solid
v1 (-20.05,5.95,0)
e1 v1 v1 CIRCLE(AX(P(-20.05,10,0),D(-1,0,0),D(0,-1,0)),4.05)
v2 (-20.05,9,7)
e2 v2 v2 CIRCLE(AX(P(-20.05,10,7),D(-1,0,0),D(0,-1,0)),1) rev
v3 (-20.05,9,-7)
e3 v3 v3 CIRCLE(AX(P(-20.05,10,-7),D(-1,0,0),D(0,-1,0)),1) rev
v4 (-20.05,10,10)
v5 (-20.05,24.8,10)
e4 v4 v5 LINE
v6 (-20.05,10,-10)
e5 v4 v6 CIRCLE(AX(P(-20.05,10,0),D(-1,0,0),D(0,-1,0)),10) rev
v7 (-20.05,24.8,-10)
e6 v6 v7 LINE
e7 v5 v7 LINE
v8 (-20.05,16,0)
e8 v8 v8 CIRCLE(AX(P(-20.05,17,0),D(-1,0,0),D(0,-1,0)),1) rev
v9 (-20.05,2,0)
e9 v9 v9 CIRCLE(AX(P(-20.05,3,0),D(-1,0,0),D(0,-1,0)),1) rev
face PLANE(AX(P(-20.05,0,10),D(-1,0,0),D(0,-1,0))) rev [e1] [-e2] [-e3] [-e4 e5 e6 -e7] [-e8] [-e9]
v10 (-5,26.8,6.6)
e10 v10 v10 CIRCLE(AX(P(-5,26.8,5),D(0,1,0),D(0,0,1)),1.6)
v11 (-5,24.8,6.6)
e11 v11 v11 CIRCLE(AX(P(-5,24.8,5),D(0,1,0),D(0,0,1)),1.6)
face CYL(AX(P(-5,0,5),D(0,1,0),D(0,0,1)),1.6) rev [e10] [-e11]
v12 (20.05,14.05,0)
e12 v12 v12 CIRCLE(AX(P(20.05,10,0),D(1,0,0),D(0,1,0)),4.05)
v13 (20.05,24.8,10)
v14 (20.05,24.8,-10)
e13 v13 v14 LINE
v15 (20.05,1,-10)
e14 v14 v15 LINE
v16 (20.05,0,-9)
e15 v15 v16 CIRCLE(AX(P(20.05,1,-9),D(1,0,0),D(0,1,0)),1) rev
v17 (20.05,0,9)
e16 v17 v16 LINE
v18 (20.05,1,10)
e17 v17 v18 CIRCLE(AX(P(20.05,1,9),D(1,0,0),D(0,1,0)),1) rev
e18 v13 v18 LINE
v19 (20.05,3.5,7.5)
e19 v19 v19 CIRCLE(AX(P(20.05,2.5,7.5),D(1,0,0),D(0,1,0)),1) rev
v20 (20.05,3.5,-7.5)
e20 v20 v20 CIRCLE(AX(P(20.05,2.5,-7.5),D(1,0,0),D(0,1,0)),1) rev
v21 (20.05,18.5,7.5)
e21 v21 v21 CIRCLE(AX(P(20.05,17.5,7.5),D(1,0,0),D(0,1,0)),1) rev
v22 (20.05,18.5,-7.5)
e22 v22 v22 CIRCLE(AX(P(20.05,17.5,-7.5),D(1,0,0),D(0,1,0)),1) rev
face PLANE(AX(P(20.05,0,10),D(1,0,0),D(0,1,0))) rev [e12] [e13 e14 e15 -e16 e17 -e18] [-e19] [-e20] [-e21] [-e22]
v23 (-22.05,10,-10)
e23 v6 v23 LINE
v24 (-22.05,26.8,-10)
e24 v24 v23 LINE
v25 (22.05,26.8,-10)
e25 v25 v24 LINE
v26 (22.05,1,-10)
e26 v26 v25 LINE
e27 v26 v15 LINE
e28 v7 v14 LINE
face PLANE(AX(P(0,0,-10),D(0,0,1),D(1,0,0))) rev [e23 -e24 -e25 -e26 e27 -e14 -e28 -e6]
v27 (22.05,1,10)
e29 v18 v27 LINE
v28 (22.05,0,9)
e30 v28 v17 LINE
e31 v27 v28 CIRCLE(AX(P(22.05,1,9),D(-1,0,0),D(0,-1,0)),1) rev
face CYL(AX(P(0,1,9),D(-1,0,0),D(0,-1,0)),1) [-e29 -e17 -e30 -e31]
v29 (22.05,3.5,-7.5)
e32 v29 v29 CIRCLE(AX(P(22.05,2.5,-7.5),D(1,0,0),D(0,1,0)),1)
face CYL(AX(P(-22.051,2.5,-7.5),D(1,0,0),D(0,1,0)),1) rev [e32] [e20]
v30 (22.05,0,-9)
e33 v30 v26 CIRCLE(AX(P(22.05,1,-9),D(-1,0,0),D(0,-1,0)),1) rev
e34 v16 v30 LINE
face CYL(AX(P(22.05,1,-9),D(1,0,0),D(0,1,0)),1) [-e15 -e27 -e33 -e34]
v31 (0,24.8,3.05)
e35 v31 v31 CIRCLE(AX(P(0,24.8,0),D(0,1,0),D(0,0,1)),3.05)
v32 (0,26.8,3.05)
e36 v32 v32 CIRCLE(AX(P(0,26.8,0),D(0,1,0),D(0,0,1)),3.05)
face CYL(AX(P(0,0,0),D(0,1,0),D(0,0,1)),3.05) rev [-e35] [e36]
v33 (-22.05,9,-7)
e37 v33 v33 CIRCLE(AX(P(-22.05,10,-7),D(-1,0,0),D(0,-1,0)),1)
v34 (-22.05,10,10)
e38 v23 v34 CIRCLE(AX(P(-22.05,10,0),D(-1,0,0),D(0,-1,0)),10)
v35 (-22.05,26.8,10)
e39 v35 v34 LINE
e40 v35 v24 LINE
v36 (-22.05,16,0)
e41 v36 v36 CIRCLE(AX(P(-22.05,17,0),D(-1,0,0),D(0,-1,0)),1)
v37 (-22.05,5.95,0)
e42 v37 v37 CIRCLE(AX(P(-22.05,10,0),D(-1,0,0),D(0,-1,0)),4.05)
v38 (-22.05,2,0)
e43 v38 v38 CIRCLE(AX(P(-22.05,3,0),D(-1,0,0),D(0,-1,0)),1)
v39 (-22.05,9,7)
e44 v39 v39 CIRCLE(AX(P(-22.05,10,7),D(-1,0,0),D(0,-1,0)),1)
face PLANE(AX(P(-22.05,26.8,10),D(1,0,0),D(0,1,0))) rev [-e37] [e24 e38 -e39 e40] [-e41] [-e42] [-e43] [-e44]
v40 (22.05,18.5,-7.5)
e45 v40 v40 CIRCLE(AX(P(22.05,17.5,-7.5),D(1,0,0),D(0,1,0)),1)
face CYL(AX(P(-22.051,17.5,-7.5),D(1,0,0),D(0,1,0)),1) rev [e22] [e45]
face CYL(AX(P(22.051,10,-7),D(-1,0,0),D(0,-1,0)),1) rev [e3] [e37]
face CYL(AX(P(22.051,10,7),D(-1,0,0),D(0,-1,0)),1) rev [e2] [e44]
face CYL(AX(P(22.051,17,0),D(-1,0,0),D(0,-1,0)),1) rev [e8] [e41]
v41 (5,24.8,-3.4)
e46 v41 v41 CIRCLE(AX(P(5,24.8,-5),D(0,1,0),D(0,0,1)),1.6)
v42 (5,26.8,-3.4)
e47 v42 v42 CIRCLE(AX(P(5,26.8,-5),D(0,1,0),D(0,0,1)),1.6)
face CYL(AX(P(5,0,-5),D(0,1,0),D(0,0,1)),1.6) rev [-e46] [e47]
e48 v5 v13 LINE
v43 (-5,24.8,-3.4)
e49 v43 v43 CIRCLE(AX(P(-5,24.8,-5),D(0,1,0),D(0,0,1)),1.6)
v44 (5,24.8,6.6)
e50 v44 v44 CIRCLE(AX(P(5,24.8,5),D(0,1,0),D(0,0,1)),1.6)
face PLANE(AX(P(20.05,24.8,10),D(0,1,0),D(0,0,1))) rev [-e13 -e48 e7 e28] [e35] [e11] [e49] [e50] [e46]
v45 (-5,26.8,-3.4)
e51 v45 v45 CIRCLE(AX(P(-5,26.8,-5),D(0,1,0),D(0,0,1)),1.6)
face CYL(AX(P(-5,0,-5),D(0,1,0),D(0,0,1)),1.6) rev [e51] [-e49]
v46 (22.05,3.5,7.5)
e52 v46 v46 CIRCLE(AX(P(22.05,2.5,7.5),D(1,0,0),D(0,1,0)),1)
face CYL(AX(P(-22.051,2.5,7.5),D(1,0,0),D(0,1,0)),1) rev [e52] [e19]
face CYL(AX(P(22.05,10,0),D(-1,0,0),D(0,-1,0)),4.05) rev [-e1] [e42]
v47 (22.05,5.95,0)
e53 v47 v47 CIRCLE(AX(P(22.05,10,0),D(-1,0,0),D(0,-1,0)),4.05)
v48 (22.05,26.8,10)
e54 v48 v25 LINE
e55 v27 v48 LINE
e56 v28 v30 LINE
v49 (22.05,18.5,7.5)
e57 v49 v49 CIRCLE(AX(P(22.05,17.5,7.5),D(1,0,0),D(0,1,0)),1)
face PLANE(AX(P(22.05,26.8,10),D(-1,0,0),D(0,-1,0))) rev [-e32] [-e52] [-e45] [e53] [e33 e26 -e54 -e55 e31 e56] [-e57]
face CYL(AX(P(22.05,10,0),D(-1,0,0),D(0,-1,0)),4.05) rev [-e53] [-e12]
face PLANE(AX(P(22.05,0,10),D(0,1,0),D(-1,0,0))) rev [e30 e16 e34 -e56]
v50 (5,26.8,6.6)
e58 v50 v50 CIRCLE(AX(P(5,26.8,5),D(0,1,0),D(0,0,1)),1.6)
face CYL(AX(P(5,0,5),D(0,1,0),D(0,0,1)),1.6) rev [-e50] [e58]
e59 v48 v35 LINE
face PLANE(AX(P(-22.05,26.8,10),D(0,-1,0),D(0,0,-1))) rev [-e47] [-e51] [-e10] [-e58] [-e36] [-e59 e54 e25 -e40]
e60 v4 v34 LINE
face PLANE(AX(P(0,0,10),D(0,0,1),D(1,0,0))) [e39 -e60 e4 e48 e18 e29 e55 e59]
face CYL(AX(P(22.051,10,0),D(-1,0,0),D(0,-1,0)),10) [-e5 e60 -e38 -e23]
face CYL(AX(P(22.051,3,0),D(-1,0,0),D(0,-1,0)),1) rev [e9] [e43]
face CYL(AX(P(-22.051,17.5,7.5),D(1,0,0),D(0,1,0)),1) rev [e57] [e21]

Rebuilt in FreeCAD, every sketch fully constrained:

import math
import FreeCAD as App
import Part
import Sketcher
from FreeCAD import Vector
Q = App.Units.Quantity


def edges_at(feature, points):
    """Names of the edges that pass closest to the given points."""
    edges = feature.Shape.Edges
    near = lambda p: min(range(len(edges)), key=lambda i: edges[i].distToShape(Part.Vertex(*p))[0])
    return sorted({f"Edge{near(p) + 1}" for p in points})

doc = App.newDocument("Part")
body = doc.addObject("PartDesign::Body", "Body")

# Sketch on XY plane
sketch1 = doc.addObject("Sketcher::SketchObject", "Sketch")
body.addObject(sketch1)
sketch1.AttachmentSupport = (doc.XY_Plane, [""])
sketch1.MapMode = "FlatFace"
sketch1.addGeometry([
    Part.LineSegment(Vector(22.05, 26.8, 0), Vector(-22.05, 26.8, 0)),  # 0
    Part.LineSegment(Vector(-22.05, 26.8, 0), Vector(-22.05, 0, 0)),  # 1
    Part.LineSegment(Vector(-22.05, 0, 0), Vector(-20.05, 0, 0)),  # 2
    Part.LineSegment(Vector(-20.05, 0, 0), Vector(-20.05, 24.8, 0)),  # 3
    Part.LineSegment(Vector(-20.05, 24.8, 0), Vector(20.05, 24.8, 0)),  # 4
    Part.LineSegment(Vector(20.05, 24.8, 0), Vector(20.05, 0, 0)),  # 5
    Part.LineSegment(Vector(20.05, 0, 0), Vector(22.05, 0, 0)),  # 6
    Part.LineSegment(Vector(22.05, 0, 0), Vector(22.05, 26.8, 0)),  # 7
], False)
sketch1.addConstraint([
    Sketcher.Constraint("Coincident", 0, 2, 1, 1),
    Sketcher.Constraint("Coincident", 1, 2, 2, 1),
    Sketcher.Constraint("Coincident", 2, 2, 3, 1),
    Sketcher.Constraint("Coincident", 3, 2, 4, 1),
    Sketcher.Constraint("Coincident", 4, 2, 5, 1),
    Sketcher.Constraint("Coincident", 5, 2, 6, 1),
    Sketcher.Constraint("Coincident", 6, 2, 7, 1),
    Sketcher.Constraint("Coincident", 7, 2, 0, 1),
    Sketcher.Constraint("Horizontal", 0),
    Sketcher.Constraint("Vertical", 1),
    Sketcher.Constraint("Horizontal", 2),
    Sketcher.Constraint("Vertical", 3),
    Sketcher.Constraint("Horizontal", 4),
    Sketcher.Constraint("Vertical", 5),
    Sketcher.Constraint("Horizontal", 6),
    Sketcher.Constraint("Vertical", 7),
    Sketcher.Constraint("Symmetric", 2, 2, 5, 2, -1, 1),
    Sketcher.Constraint("Symmetric", 1, 2, 6, 2, -2),
    Sketcher.Constraint("DistanceX", 2, 1, 2, 2, Q("2 mm")),
    Sketcher.Constraint("DistanceX", 0, 2, 0, 1, Q("44.1 mm")),
    Sketcher.Constraint("DistanceY", 1, 2, 1, 1, Q("26.8 mm")),
    Sketcher.Constraint("DistanceY", 3, 1, 3, 2, Q("24.8 mm")),
])
pad1 = doc.addObject("PartDesign::Pad", "Pad")
body.addObject(pad1)
pad1.Profile = sketch1
pad1.Length = 20
pad1.Midplane = True

# Sketch on XZ plane
sketch2 = doc.addObject("Sketcher::SketchObject", "Sketch001")
body.addObject(sketch2)
sketch2.AttachmentSupport = (doc.XZ_Plane, [""])
sketch2.MapMode = "FlatFace"
sketch2.AttachmentOffset = App.Placement(Vector(0, 0, -26.8), App.Rotation())
sketch2.addGeometry([
    Part.Circle(Vector(0, 0, 0), Vector(0, 0, 1), 3.05),  # 0
    Part.Circle(Vector(-5, -5, 0), Vector(0, 0, 1), 1.6),  # 1
    Part.Circle(Vector(5, -5, 0), Vector(0, 0, 1), 1.6),  # 2
    Part.Circle(Vector(5, 5, 0), Vector(0, 0, 1), 1.6),  # 3
    Part.Circle(Vector(-5, 5, 0), Vector(0, 0, 1), 1.6),  # 4
], False)
sketch2.addConstraint([
    Sketcher.Constraint("Coincident", 0, 3, -1, 1),
    Sketcher.Constraint("Equal", 1, 2),
    Sketcher.Constraint("Equal", 2, 3),
    Sketcher.Constraint("Equal", 3, 4),
    Sketcher.Constraint("Symmetric", 1, 3, 3, 3, -1, 1),
    Sketcher.Constraint("Symmetric", 2, 3, 4, 3, -1, 1),
    Sketcher.Constraint("Symmetric", 1, 3, 2, 3, -2),
    Sketcher.Constraint("Diameter", 0, Q("6.1 mm")),
    Sketcher.Constraint("Diameter", 1, Q("3.2 mm")),
    Sketcher.Constraint("DistanceX", 1, 3, -1, 1, Q("5 mm")),
    Sketcher.Constraint("DistanceY", 1, 3, -1, 1, Q("5 mm")),
])
pocket1 = doc.addObject("PartDesign::Pocket", "Pocket")
body.addObject(pocket1)
pocket1.Profile = sketch2
pocket1.Type = "ThroughAll"
pocket1.Reversed = True

# Sketch on YZ plane
sketch3 = doc.addObject("Sketcher::SketchObject", "Sketch002")
body.addObject(sketch3)
sketch3.AttachmentSupport = (doc.YZ_Plane, [""])
sketch3.MapMode = "FlatFace"
sketch3.AttachmentOffset = App.Placement(Vector(0, 0, -22.05), App.Rotation())
sketch3.addGeometry([
    Part.ArcOfCircle(Part.Circle(Vector(10, 0, 0), Vector(0, 0, 1), 10), math.radians(180), math.radians(270)),
    Part.LineSegment(Vector(10, -10, 0), Vector(0, -10, 0)),
    Part.LineSegment(Vector(0, -10, 0), Vector(0, 0, 0)),
], False)
sketch3.addConstraint([
    Sketcher.Constraint("Tangent", 0, 2, 1, 1),
    Sketcher.Constraint("Coincident", 1, 2, 2, 1),
    Sketcher.Constraint("Tangent", 2, 2, 0, 1),
    Sketcher.Constraint("Horizontal", 1),
    Sketcher.Constraint("Vertical", 2),
    Sketcher.Constraint("Coincident", 2, 2, -1, 1),
    Sketcher.Constraint("Radius", 0, Q("10 mm")),
])
pocket2 = doc.addObject("PartDesign::Pocket", "Pocket001")
body.addObject(pocket2)
pocket2.Profile = sketch3
pocket2.Type = "UpToFirst"
pocket2.Reversed = True

# Sketch on YZ plane
sketch4 = doc.addObject("Sketcher::SketchObject", "Sketch003")
body.addObject(sketch4)
sketch4.AttachmentSupport = (doc.YZ_Plane, [""])
sketch4.MapMode = "FlatFace"
sketch4.AttachmentOffset = App.Placement(Vector(0, 0, -22.05), App.Rotation())
sketch4.addGeometry([
    Part.ArcOfCircle(Part.Circle(Vector(10, 0, 0), Vector(0, 0, 1), 10), math.radians(90), math.radians(180)),
    Part.LineSegment(Vector(0, 0, 0), Vector(0, 10, 0)),
    Part.LineSegment(Vector(0, 10, 0), Vector(10, 10, 0)),
], False)
sketch4.addConstraint([
    Sketcher.Constraint("Tangent", 0, 2, 1, 1),
    Sketcher.Constraint("Coincident", 1, 2, 2, 1),
    Sketcher.Constraint("Tangent", 2, 2, 0, 1),
    Sketcher.Constraint("Vertical", 1),
    Sketcher.Constraint("Horizontal", 2),
    Sketcher.Constraint("Coincident", 0, 2, -1, 1),
    Sketcher.Constraint("Radius", 0, Q("10 mm")),
])
pocket3 = doc.addObject("PartDesign::Pocket", "Pocket002")
body.addObject(pocket3)
pocket3.Profile = sketch4
pocket3.Type = "UpToFirst"
pocket3.Reversed = True

# Sketch on YZ plane
sketch5 = doc.addObject("Sketcher::SketchObject", "Sketch004")
body.addObject(sketch5)
sketch5.AttachmentSupport = (doc.YZ_Plane, [""])
sketch5.MapMode = "FlatFace"
sketch5.AttachmentOffset = App.Placement(Vector(0, 0, -22.05), App.Rotation())
sketch5.addGeometry([
    Part.ArcOfCircle(Part.Circle(Vector(10, 0, 0), Vector(0, 0, 1), 10), math.radians(180), math.radians(270)),  # 0
    Part.LineSegment(Vector(10, -10, 0), Vector(0, -10, 0)),  # 1
    Part.LineSegment(Vector(0, -10, 0), Vector(0, 0, 0)),  # 2
    Part.ArcOfCircle(Part.Circle(Vector(10, 0, 0), Vector(0, 0, 1), 10), math.radians(90), math.radians(180)),  # 3
    Part.LineSegment(Vector(0, 0, 0), Vector(0, 10, 0)),  # 4
    Part.LineSegment(Vector(0, 10, 0), Vector(10, 10, 0)),  # 5
], False)
sketch5.addConstraint([
    Sketcher.Constraint("Tangent", 0, 2, 1, 1),
    Sketcher.Constraint("Coincident", 1, 2, 2, 1),
    Sketcher.Constraint("Tangent", 2, 2, 0, 1),
    Sketcher.Constraint("Tangent", 3, 2, 4, 1),
    Sketcher.Constraint("Coincident", 4, 2, 5, 1),
    Sketcher.Constraint("Tangent", 5, 2, 3, 1),
    Sketcher.Constraint("Horizontal", 1),
    Sketcher.Constraint("Vertical", 2),
    Sketcher.Constraint("Vertical", 4),
    Sketcher.Constraint("Horizontal", 5),
    Sketcher.Constraint("Coincident", 2, 2, -1, 1),
    Sketcher.Constraint("Coincident", 3, 2, -1, 1),
    Sketcher.Constraint("Equal", 0, 3),
    Sketcher.Constraint("Radius", 0, Q("10 mm")),
])
pocket4 = doc.addObject("PartDesign::Pocket", "Pocket003")
body.addObject(pocket4)
pocket4.Profile = sketch5
pocket4.Length = 53.564722

# Sketch on YZ plane
sketch6 = doc.addObject("Sketcher::SketchObject", "Sketch005")
body.addObject(sketch6)
sketch6.AttachmentSupport = (doc.YZ_Plane, [""])
sketch6.MapMode = "FlatFace"
sketch6.AttachmentOffset = App.Placement(Vector(0, 0, -22.05), App.Rotation())
sketch6.addGeometry(Part.Circle(Vector(10, 0, 0), Vector(0, 0, 1), 4.05), False)
sketch6.addConstraint([
    Sketcher.Constraint("PointOnObject", 0, 3, -1),
    Sketcher.Constraint("Diameter", 0, Q("8.1 mm")),
    Sketcher.Constraint("DistanceX", -1, 1, 0, 3, Q("10 mm")),
])
pocket5 = doc.addObject("PartDesign::Pocket", "Pocket004")
body.addObject(pocket5)
pocket5.Profile = sketch6
pocket5.Type = "ThroughAll"
pocket5.Reversed = True

# Sketch on YZ plane
sketch7 = doc.addObject("Sketcher::SketchObject", "Sketch006")
body.addObject(sketch7)
sketch7.AttachmentSupport = (doc.YZ_Plane, [""])
sketch7.MapMode = "FlatFace"
sketch7.AttachmentOffset = App.Placement(Vector(0, 0, -22.05), App.Rotation())
sketch7.addGeometry(Part.Circle(Vector(10, -7, 0), Vector(0, 0, 1), 1), False)
sketch7.addConstraint([
    Sketcher.Constraint("Diameter", 0, Q("2 mm")),
    Sketcher.Constraint("DistanceX", -1, 1, 0, 3, Q("10 mm")),
    Sketcher.Constraint("DistanceY", 0, 3, -1, 1, Q("7 mm")),
])
pocket6 = doc.addObject("PartDesign::Pocket", "Pocket005")
body.addObject(pocket6)
pocket6.Profile = sketch7
pocket6.Type = "UpToFirst"
pocket6.Reversed = True

# Sketch on YZ plane
sketch8 = doc.addObject("Sketcher::SketchObject", "Sketch007")
body.addObject(sketch8)
sketch8.AttachmentSupport = (doc.YZ_Plane, [""])
sketch8.MapMode = "FlatFace"
sketch8.AttachmentOffset = App.Placement(Vector(0, 0, -22.05), App.Rotation())
sketch8.addGeometry(Part.Circle(Vector(17, 0, 0), Vector(0, 0, 1), 1), False)
sketch8.addConstraint([
    Sketcher.Constraint("PointOnObject", 0, 3, -1),
    Sketcher.Constraint("Diameter", 0, Q("2 mm")),
    Sketcher.Constraint("DistanceX", -1, 1, 0, 3, Q("17 mm")),
])
pocket7 = doc.addObject("PartDesign::Pocket", "Pocket006")
body.addObject(pocket7)
pocket7.Profile = sketch8
pocket7.Type = "UpToFirst"
pocket7.Reversed = True

# Sketch on YZ plane
sketch9 = doc.addObject("Sketcher::SketchObject", "Sketch008")
body.addObject(sketch9)
sketch9.AttachmentSupport = (doc.YZ_Plane, [""])
sketch9.MapMode = "FlatFace"
sketch9.AttachmentOffset = App.Placement(Vector(0, 0, -22.05), App.Rotation())
sketch9.addGeometry(Part.Circle(Vector(10, 7, 0), Vector(0, 0, 1), 1), False)
sketch9.addConstraint([
    Sketcher.Constraint("Diameter", 0, Q("2 mm")),
    Sketcher.Constraint("DistanceX", -1, 1, 0, 3, Q("10 mm")),
    Sketcher.Constraint("DistanceY", -1, 1, 0, 3, Q("7 mm")),
])
pocket8 = doc.addObject("PartDesign::Pocket", "Pocket007")
body.addObject(pocket8)
pocket8.Profile = sketch9
pocket8.Type = "UpToFirst"
pocket8.Reversed = True

# Sketch on YZ plane
sketch10 = doc.addObject("Sketcher::SketchObject", "Sketch009")
body.addObject(sketch10)
sketch10.AttachmentSupport = (doc.YZ_Plane, [""])
sketch10.MapMode = "FlatFace"
sketch10.AttachmentOffset = App.Placement(Vector(0, 0, -22.05), App.Rotation())
sketch10.addGeometry(Part.Circle(Vector(3, 0, 0), Vector(0, 0, 1), 1), False)
sketch10.addConstraint([
    Sketcher.Constraint("PointOnObject", 0, 3, -1),
    Sketcher.Constraint("Diameter", 0, Q("2 mm")),
    Sketcher.Constraint("DistanceX", -1, 1, 0, 3, Q("3 mm")),
])
pocket9 = doc.addObject("PartDesign::Pocket", "Pocket008")
body.addObject(pocket9)
pocket9.Profile = sketch10
pocket9.Type = "UpToFirst"
pocket9.Reversed = True

# Sketch on YZ plane
sketch11 = doc.addObject("Sketcher::SketchObject", "Sketch010")
body.addObject(sketch11)
sketch11.AttachmentSupport = (doc.YZ_Plane, [""])
sketch11.MapMode = "FlatFace"
sketch11.AttachmentOffset = App.Placement(Vector(0, 0, 22.05), App.Rotation())
sketch11.addGeometry(Part.Circle(Vector(2.5, 7.5, 0), Vector(0, 0, 1), 1), False)
sketch11.addConstraint([
    Sketcher.Constraint("Diameter", 0, Q("2 mm")),
    Sketcher.Constraint("DistanceX", -1, 1, 0, 3, Q("2.5 mm")),
    Sketcher.Constraint("DistanceY", -1, 1, 0, 3, Q("7.5 mm")),
])
pocket10 = doc.addObject("PartDesign::Pocket", "Pocket009")
body.addObject(pocket10)
pocket10.Profile = sketch11
pocket10.Type = "UpToFirst"

# Sketch on YZ plane
sketch12 = doc.addObject("Sketcher::SketchObject", "Sketch011")
body.addObject(sketch12)
sketch12.AttachmentSupport = (doc.YZ_Plane, [""])
sketch12.MapMode = "FlatFace"
sketch12.AttachmentOffset = App.Placement(Vector(0, 0, 22.05), App.Rotation())
sketch12.addGeometry(Part.Circle(Vector(2.5, -7.5, 0), Vector(0, 0, 1), 1), False)
sketch12.addConstraint([
    Sketcher.Constraint("Diameter", 0, Q("2 mm")),
    Sketcher.Constraint("DistanceX", -1, 1, 0, 3, Q("2.5 mm")),
    Sketcher.Constraint("DistanceY", 0, 3, -1, 1, Q("7.5 mm")),
])
pocket11 = doc.addObject("PartDesign::Pocket", "Pocket010")
body.addObject(pocket11)
pocket11.Profile = sketch12
pocket11.Type = "UpToFirst"

# Sketch on YZ plane
sketch13 = doc.addObject("Sketcher::SketchObject", "Sketch012")
body.addObject(sketch13)
sketch13.AttachmentSupport = (doc.YZ_Plane, [""])
sketch13.MapMode = "FlatFace"
sketch13.AttachmentOffset = App.Placement(Vector(0, 0, 22.05), App.Rotation())
sketch13.addGeometry(Part.Circle(Vector(17.5, -7.5, 0), Vector(0, 0, 1), 1), False)
sketch13.addConstraint([
    Sketcher.Constraint("Diameter", 0, Q("2 mm")),
    Sketcher.Constraint("DistanceX", -1, 1, 0, 3, Q("17.5 mm")),
    Sketcher.Constraint("DistanceY", 0, 3, -1, 1, Q("7.5 mm")),
])
pocket12 = doc.addObject("PartDesign::Pocket", "Pocket011")
body.addObject(pocket12)
pocket12.Profile = sketch13
pocket12.Type = "UpToFirst"

# Sketch on YZ plane
sketch14 = doc.addObject("Sketcher::SketchObject", "Sketch013")
body.addObject(sketch14)
sketch14.AttachmentSupport = (doc.YZ_Plane, [""])
sketch14.MapMode = "FlatFace"
sketch14.AttachmentOffset = App.Placement(Vector(0, 0, 22.05), App.Rotation())
sketch14.addGeometry(Part.Circle(Vector(17.5, 7.5, 0), Vector(0, 0, 1), 1), False)
sketch14.addConstraint([
    Sketcher.Constraint("Diameter", 0, Q("2 mm")),
    Sketcher.Constraint("DistanceX", -1, 1, 0, 3, Q("17.5 mm")),
    Sketcher.Constraint("DistanceY", -1, 1, 0, 3, Q("7.5 mm")),
])
pocket13 = doc.addObject("PartDesign::Pocket", "Pocket012")
body.addObject(pocket13)
pocket13.Profile = sketch14
pocket13.Type = "UpToFirst"
doc.recompute()

fillet = doc.addObject("PartDesign::Fillet", "Fillet")
body.addObject(fillet)
fillet.Base = (pocket13, edges_at(pocket13, [(21.05, 0, 10), (21.05, 0, -10)]))
fillet.Radius = 1

doc.recompute()
